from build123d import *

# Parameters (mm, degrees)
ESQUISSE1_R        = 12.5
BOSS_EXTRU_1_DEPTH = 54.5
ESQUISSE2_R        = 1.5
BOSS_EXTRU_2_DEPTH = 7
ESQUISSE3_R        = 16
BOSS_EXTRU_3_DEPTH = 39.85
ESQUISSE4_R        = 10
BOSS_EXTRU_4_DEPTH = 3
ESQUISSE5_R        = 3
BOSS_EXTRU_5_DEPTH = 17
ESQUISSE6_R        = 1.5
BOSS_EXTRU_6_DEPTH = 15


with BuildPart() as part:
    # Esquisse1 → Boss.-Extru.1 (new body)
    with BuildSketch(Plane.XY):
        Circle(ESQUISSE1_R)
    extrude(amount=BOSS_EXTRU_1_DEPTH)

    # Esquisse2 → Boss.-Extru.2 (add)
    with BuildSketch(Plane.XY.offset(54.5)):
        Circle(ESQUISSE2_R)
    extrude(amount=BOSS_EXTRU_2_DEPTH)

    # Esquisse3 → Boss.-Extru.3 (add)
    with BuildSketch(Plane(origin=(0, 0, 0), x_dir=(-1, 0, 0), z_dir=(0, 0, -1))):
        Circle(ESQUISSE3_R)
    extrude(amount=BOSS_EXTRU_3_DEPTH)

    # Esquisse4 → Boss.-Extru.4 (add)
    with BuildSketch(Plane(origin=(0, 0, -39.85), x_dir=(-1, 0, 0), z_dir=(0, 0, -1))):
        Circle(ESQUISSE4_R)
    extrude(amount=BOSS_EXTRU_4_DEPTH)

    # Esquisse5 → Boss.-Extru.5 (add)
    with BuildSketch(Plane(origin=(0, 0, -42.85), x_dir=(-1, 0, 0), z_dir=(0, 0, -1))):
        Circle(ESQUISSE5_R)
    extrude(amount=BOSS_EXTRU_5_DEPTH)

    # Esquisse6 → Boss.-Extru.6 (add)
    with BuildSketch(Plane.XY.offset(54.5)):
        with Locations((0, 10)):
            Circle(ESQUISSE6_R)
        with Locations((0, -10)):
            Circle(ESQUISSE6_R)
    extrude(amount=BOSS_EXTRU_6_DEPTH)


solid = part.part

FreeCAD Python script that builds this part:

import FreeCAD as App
import Part
import Sketcher
Q = App.Units.Quantity

doc = App.newDocument("Part")
body = doc.addObject("PartDesign::Body", "Body")

# Sketch on XY plane
sketch1 = doc.addObject("Sketcher::SketchObject", "Sketch")
body.addObject(sketch1)
sketch1.AttachmentSupport = (doc.XY_Plane, [""])
sketch1.MapMode = "FlatFace"
sketch1.addGeometry(Part.Circle(App.Vector(0, 0, 0), App.Vector(0, 0, 1), 12), False)
sketch1.addConstraint([
    Sketcher.Constraint("Coincident", 0, 3, -1, 1),
    Sketcher.Constraint("Diameter", 0, Q("25 mm")),
])
pad1 = doc.addObject("PartDesign::Pad", "Pad")
body.addObject(pad1)
pad1.Profile = sketch1
pad1.Length = 54.5

# Sketch on XY plane
sketch2 = doc.addObject("Sketcher::SketchObject", "Sketch001")
body.addObject(sketch2)
sketch2.AttachmentSupport = (doc.XY_Plane, [""])
sketch2.MapMode = "FlatFace"
sketch2.AttachmentOffset = App.Placement(App.Vector(0, 0, 54.5), App.Rotation())
sketch2.addGeometry(Part.Circle(App.Vector(0, 0, 0), App.Vector(0, 0, 1), 1.5), False)
sketch2.addConstraint([
    Sketcher.Constraint("Coincident", 0, 3, -1, 1),
    Sketcher.Constraint("Diameter", 0, Q("3 mm")),
])
pad2 = doc.addObject("PartDesign::Pad", "Pad001")
body.addObject(pad2)
pad2.Profile = sketch2
pad2.Length = 7

# Sketch on XY plane
sketch3 = doc.addObject("Sketcher::SketchObject", "Sketch002")
body.addObject(sketch3)
sketch3.AttachmentSupport = (doc.XY_Plane, [""])
sketch3.MapMode = "FlatFace"
sketch3.addGeometry(Part.Circle(App.Vector(0, 0, 0), App.Vector(0, 0, 1), 16), False)
sketch3.addConstraint([
    Sketcher.Constraint("Coincident", 0, 3, -1, 1),
    Sketcher.Constraint("Diameter", 0, Q("32 mm")),
])
pad3 = doc.addObject("PartDesign::Pad", "Pad002")
body.addObject(pad3)
pad3.Profile = sketch3
pad3.Length = 39.85
pad3.Reversed = True

# Sketch on XY plane
sketch4 = doc.addObject("Sketcher::SketchObject", "Sketch003")
body.addObject(sketch4)
sketch4.AttachmentSupport = (doc.XY_Plane, [""])
sketch4.MapMode = "FlatFace"
sketch4.AttachmentOffset = App.Placement(App.Vector(0, 0, -39.85), App.Rotation())
sketch4.addGeometry(Part.Circle(App.Vector(0, 0, 0), App.Vector(0, 0, 1), 10), False)
sketch4.addConstraint([
    Sketcher.Constraint("Coincident", 0, 3, -1, 1),
    Sketcher.Constraint("Diameter", 0, Q("20 mm")),
])
pad4 = doc.addObject("PartDesign::Pad", "Pad003")
body.addObject(pad4)
pad4.Profile = sketch4
pad4.Length = 3
pad4.Reversed = True

# Sketch on XY plane
sketch5 = doc.addObject("Sketcher::SketchObject", "Sketch004")
body.addObject(sketch5)
sketch5.AttachmentSupport = (doc.XY_Plane, [""])
sketch5.MapMode = "FlatFace"
sketch5.AttachmentOffset = App.Placement(App.Vector(0, 0, -42.85), App.Rotation())
sketch5.addGeometry(Part.Circle(App.Vector(0, 0, 0), App.Vector(0, 0, 1), 3), False)
sketch5.addConstraint([
    Sketcher.Constraint("Coincident", 0, 3, -1, 1),
    Sketcher.Constraint("Diameter", 0, Q("6 mm")),
])
pad5 = doc.addObject("PartDesign::Pad", "Pad004")
body.addObject(pad5)
pad5.Profile = sketch5
pad5.Length = 17
pad5.Reversed = True

# Sketch on XY plane
sketch6 = doc.addObject("Sketcher::SketchObject", "Sketch005")
body.addObject(sketch6)
sketch6.AttachmentSupport = (doc.XY_Plane, [""])
sketch6.MapMode = "FlatFace"
sketch6.AttachmentOffset = App.Placement(App.Vector(0, 0, 54.5), App.Rotation())
sketch6.addGeometry([
    Part.Circle(App.Vector(0, 10, 0), App.Vector(0, 0, 1), 1.5),
    Part.Circle(App.Vector(0, -10, 0), App.Vector(0, 0, 1), 1.5),
], False)
sketch6.addConstraint([
    Sketcher.Constraint("Equal", 0, 1),
    Sketcher.Constraint("Symmetric", 0, 3, 1, 3, -1, 1),
    Sketcher.Constraint("PointOnObject", 0, 3, -2),
    Sketcher.Constraint("Diameter", 0, Q("3 mm")),
    Sketcher.Constraint("DistanceY", -1, 1, 0, 3, Q("10 mm")),
])
pad6 = doc.addObject("PartDesign::Pad", "Pad005")
body.addObject(pad6)
pad6.Profile = sketch6
pad6.Length = 15

doc.recompute()
